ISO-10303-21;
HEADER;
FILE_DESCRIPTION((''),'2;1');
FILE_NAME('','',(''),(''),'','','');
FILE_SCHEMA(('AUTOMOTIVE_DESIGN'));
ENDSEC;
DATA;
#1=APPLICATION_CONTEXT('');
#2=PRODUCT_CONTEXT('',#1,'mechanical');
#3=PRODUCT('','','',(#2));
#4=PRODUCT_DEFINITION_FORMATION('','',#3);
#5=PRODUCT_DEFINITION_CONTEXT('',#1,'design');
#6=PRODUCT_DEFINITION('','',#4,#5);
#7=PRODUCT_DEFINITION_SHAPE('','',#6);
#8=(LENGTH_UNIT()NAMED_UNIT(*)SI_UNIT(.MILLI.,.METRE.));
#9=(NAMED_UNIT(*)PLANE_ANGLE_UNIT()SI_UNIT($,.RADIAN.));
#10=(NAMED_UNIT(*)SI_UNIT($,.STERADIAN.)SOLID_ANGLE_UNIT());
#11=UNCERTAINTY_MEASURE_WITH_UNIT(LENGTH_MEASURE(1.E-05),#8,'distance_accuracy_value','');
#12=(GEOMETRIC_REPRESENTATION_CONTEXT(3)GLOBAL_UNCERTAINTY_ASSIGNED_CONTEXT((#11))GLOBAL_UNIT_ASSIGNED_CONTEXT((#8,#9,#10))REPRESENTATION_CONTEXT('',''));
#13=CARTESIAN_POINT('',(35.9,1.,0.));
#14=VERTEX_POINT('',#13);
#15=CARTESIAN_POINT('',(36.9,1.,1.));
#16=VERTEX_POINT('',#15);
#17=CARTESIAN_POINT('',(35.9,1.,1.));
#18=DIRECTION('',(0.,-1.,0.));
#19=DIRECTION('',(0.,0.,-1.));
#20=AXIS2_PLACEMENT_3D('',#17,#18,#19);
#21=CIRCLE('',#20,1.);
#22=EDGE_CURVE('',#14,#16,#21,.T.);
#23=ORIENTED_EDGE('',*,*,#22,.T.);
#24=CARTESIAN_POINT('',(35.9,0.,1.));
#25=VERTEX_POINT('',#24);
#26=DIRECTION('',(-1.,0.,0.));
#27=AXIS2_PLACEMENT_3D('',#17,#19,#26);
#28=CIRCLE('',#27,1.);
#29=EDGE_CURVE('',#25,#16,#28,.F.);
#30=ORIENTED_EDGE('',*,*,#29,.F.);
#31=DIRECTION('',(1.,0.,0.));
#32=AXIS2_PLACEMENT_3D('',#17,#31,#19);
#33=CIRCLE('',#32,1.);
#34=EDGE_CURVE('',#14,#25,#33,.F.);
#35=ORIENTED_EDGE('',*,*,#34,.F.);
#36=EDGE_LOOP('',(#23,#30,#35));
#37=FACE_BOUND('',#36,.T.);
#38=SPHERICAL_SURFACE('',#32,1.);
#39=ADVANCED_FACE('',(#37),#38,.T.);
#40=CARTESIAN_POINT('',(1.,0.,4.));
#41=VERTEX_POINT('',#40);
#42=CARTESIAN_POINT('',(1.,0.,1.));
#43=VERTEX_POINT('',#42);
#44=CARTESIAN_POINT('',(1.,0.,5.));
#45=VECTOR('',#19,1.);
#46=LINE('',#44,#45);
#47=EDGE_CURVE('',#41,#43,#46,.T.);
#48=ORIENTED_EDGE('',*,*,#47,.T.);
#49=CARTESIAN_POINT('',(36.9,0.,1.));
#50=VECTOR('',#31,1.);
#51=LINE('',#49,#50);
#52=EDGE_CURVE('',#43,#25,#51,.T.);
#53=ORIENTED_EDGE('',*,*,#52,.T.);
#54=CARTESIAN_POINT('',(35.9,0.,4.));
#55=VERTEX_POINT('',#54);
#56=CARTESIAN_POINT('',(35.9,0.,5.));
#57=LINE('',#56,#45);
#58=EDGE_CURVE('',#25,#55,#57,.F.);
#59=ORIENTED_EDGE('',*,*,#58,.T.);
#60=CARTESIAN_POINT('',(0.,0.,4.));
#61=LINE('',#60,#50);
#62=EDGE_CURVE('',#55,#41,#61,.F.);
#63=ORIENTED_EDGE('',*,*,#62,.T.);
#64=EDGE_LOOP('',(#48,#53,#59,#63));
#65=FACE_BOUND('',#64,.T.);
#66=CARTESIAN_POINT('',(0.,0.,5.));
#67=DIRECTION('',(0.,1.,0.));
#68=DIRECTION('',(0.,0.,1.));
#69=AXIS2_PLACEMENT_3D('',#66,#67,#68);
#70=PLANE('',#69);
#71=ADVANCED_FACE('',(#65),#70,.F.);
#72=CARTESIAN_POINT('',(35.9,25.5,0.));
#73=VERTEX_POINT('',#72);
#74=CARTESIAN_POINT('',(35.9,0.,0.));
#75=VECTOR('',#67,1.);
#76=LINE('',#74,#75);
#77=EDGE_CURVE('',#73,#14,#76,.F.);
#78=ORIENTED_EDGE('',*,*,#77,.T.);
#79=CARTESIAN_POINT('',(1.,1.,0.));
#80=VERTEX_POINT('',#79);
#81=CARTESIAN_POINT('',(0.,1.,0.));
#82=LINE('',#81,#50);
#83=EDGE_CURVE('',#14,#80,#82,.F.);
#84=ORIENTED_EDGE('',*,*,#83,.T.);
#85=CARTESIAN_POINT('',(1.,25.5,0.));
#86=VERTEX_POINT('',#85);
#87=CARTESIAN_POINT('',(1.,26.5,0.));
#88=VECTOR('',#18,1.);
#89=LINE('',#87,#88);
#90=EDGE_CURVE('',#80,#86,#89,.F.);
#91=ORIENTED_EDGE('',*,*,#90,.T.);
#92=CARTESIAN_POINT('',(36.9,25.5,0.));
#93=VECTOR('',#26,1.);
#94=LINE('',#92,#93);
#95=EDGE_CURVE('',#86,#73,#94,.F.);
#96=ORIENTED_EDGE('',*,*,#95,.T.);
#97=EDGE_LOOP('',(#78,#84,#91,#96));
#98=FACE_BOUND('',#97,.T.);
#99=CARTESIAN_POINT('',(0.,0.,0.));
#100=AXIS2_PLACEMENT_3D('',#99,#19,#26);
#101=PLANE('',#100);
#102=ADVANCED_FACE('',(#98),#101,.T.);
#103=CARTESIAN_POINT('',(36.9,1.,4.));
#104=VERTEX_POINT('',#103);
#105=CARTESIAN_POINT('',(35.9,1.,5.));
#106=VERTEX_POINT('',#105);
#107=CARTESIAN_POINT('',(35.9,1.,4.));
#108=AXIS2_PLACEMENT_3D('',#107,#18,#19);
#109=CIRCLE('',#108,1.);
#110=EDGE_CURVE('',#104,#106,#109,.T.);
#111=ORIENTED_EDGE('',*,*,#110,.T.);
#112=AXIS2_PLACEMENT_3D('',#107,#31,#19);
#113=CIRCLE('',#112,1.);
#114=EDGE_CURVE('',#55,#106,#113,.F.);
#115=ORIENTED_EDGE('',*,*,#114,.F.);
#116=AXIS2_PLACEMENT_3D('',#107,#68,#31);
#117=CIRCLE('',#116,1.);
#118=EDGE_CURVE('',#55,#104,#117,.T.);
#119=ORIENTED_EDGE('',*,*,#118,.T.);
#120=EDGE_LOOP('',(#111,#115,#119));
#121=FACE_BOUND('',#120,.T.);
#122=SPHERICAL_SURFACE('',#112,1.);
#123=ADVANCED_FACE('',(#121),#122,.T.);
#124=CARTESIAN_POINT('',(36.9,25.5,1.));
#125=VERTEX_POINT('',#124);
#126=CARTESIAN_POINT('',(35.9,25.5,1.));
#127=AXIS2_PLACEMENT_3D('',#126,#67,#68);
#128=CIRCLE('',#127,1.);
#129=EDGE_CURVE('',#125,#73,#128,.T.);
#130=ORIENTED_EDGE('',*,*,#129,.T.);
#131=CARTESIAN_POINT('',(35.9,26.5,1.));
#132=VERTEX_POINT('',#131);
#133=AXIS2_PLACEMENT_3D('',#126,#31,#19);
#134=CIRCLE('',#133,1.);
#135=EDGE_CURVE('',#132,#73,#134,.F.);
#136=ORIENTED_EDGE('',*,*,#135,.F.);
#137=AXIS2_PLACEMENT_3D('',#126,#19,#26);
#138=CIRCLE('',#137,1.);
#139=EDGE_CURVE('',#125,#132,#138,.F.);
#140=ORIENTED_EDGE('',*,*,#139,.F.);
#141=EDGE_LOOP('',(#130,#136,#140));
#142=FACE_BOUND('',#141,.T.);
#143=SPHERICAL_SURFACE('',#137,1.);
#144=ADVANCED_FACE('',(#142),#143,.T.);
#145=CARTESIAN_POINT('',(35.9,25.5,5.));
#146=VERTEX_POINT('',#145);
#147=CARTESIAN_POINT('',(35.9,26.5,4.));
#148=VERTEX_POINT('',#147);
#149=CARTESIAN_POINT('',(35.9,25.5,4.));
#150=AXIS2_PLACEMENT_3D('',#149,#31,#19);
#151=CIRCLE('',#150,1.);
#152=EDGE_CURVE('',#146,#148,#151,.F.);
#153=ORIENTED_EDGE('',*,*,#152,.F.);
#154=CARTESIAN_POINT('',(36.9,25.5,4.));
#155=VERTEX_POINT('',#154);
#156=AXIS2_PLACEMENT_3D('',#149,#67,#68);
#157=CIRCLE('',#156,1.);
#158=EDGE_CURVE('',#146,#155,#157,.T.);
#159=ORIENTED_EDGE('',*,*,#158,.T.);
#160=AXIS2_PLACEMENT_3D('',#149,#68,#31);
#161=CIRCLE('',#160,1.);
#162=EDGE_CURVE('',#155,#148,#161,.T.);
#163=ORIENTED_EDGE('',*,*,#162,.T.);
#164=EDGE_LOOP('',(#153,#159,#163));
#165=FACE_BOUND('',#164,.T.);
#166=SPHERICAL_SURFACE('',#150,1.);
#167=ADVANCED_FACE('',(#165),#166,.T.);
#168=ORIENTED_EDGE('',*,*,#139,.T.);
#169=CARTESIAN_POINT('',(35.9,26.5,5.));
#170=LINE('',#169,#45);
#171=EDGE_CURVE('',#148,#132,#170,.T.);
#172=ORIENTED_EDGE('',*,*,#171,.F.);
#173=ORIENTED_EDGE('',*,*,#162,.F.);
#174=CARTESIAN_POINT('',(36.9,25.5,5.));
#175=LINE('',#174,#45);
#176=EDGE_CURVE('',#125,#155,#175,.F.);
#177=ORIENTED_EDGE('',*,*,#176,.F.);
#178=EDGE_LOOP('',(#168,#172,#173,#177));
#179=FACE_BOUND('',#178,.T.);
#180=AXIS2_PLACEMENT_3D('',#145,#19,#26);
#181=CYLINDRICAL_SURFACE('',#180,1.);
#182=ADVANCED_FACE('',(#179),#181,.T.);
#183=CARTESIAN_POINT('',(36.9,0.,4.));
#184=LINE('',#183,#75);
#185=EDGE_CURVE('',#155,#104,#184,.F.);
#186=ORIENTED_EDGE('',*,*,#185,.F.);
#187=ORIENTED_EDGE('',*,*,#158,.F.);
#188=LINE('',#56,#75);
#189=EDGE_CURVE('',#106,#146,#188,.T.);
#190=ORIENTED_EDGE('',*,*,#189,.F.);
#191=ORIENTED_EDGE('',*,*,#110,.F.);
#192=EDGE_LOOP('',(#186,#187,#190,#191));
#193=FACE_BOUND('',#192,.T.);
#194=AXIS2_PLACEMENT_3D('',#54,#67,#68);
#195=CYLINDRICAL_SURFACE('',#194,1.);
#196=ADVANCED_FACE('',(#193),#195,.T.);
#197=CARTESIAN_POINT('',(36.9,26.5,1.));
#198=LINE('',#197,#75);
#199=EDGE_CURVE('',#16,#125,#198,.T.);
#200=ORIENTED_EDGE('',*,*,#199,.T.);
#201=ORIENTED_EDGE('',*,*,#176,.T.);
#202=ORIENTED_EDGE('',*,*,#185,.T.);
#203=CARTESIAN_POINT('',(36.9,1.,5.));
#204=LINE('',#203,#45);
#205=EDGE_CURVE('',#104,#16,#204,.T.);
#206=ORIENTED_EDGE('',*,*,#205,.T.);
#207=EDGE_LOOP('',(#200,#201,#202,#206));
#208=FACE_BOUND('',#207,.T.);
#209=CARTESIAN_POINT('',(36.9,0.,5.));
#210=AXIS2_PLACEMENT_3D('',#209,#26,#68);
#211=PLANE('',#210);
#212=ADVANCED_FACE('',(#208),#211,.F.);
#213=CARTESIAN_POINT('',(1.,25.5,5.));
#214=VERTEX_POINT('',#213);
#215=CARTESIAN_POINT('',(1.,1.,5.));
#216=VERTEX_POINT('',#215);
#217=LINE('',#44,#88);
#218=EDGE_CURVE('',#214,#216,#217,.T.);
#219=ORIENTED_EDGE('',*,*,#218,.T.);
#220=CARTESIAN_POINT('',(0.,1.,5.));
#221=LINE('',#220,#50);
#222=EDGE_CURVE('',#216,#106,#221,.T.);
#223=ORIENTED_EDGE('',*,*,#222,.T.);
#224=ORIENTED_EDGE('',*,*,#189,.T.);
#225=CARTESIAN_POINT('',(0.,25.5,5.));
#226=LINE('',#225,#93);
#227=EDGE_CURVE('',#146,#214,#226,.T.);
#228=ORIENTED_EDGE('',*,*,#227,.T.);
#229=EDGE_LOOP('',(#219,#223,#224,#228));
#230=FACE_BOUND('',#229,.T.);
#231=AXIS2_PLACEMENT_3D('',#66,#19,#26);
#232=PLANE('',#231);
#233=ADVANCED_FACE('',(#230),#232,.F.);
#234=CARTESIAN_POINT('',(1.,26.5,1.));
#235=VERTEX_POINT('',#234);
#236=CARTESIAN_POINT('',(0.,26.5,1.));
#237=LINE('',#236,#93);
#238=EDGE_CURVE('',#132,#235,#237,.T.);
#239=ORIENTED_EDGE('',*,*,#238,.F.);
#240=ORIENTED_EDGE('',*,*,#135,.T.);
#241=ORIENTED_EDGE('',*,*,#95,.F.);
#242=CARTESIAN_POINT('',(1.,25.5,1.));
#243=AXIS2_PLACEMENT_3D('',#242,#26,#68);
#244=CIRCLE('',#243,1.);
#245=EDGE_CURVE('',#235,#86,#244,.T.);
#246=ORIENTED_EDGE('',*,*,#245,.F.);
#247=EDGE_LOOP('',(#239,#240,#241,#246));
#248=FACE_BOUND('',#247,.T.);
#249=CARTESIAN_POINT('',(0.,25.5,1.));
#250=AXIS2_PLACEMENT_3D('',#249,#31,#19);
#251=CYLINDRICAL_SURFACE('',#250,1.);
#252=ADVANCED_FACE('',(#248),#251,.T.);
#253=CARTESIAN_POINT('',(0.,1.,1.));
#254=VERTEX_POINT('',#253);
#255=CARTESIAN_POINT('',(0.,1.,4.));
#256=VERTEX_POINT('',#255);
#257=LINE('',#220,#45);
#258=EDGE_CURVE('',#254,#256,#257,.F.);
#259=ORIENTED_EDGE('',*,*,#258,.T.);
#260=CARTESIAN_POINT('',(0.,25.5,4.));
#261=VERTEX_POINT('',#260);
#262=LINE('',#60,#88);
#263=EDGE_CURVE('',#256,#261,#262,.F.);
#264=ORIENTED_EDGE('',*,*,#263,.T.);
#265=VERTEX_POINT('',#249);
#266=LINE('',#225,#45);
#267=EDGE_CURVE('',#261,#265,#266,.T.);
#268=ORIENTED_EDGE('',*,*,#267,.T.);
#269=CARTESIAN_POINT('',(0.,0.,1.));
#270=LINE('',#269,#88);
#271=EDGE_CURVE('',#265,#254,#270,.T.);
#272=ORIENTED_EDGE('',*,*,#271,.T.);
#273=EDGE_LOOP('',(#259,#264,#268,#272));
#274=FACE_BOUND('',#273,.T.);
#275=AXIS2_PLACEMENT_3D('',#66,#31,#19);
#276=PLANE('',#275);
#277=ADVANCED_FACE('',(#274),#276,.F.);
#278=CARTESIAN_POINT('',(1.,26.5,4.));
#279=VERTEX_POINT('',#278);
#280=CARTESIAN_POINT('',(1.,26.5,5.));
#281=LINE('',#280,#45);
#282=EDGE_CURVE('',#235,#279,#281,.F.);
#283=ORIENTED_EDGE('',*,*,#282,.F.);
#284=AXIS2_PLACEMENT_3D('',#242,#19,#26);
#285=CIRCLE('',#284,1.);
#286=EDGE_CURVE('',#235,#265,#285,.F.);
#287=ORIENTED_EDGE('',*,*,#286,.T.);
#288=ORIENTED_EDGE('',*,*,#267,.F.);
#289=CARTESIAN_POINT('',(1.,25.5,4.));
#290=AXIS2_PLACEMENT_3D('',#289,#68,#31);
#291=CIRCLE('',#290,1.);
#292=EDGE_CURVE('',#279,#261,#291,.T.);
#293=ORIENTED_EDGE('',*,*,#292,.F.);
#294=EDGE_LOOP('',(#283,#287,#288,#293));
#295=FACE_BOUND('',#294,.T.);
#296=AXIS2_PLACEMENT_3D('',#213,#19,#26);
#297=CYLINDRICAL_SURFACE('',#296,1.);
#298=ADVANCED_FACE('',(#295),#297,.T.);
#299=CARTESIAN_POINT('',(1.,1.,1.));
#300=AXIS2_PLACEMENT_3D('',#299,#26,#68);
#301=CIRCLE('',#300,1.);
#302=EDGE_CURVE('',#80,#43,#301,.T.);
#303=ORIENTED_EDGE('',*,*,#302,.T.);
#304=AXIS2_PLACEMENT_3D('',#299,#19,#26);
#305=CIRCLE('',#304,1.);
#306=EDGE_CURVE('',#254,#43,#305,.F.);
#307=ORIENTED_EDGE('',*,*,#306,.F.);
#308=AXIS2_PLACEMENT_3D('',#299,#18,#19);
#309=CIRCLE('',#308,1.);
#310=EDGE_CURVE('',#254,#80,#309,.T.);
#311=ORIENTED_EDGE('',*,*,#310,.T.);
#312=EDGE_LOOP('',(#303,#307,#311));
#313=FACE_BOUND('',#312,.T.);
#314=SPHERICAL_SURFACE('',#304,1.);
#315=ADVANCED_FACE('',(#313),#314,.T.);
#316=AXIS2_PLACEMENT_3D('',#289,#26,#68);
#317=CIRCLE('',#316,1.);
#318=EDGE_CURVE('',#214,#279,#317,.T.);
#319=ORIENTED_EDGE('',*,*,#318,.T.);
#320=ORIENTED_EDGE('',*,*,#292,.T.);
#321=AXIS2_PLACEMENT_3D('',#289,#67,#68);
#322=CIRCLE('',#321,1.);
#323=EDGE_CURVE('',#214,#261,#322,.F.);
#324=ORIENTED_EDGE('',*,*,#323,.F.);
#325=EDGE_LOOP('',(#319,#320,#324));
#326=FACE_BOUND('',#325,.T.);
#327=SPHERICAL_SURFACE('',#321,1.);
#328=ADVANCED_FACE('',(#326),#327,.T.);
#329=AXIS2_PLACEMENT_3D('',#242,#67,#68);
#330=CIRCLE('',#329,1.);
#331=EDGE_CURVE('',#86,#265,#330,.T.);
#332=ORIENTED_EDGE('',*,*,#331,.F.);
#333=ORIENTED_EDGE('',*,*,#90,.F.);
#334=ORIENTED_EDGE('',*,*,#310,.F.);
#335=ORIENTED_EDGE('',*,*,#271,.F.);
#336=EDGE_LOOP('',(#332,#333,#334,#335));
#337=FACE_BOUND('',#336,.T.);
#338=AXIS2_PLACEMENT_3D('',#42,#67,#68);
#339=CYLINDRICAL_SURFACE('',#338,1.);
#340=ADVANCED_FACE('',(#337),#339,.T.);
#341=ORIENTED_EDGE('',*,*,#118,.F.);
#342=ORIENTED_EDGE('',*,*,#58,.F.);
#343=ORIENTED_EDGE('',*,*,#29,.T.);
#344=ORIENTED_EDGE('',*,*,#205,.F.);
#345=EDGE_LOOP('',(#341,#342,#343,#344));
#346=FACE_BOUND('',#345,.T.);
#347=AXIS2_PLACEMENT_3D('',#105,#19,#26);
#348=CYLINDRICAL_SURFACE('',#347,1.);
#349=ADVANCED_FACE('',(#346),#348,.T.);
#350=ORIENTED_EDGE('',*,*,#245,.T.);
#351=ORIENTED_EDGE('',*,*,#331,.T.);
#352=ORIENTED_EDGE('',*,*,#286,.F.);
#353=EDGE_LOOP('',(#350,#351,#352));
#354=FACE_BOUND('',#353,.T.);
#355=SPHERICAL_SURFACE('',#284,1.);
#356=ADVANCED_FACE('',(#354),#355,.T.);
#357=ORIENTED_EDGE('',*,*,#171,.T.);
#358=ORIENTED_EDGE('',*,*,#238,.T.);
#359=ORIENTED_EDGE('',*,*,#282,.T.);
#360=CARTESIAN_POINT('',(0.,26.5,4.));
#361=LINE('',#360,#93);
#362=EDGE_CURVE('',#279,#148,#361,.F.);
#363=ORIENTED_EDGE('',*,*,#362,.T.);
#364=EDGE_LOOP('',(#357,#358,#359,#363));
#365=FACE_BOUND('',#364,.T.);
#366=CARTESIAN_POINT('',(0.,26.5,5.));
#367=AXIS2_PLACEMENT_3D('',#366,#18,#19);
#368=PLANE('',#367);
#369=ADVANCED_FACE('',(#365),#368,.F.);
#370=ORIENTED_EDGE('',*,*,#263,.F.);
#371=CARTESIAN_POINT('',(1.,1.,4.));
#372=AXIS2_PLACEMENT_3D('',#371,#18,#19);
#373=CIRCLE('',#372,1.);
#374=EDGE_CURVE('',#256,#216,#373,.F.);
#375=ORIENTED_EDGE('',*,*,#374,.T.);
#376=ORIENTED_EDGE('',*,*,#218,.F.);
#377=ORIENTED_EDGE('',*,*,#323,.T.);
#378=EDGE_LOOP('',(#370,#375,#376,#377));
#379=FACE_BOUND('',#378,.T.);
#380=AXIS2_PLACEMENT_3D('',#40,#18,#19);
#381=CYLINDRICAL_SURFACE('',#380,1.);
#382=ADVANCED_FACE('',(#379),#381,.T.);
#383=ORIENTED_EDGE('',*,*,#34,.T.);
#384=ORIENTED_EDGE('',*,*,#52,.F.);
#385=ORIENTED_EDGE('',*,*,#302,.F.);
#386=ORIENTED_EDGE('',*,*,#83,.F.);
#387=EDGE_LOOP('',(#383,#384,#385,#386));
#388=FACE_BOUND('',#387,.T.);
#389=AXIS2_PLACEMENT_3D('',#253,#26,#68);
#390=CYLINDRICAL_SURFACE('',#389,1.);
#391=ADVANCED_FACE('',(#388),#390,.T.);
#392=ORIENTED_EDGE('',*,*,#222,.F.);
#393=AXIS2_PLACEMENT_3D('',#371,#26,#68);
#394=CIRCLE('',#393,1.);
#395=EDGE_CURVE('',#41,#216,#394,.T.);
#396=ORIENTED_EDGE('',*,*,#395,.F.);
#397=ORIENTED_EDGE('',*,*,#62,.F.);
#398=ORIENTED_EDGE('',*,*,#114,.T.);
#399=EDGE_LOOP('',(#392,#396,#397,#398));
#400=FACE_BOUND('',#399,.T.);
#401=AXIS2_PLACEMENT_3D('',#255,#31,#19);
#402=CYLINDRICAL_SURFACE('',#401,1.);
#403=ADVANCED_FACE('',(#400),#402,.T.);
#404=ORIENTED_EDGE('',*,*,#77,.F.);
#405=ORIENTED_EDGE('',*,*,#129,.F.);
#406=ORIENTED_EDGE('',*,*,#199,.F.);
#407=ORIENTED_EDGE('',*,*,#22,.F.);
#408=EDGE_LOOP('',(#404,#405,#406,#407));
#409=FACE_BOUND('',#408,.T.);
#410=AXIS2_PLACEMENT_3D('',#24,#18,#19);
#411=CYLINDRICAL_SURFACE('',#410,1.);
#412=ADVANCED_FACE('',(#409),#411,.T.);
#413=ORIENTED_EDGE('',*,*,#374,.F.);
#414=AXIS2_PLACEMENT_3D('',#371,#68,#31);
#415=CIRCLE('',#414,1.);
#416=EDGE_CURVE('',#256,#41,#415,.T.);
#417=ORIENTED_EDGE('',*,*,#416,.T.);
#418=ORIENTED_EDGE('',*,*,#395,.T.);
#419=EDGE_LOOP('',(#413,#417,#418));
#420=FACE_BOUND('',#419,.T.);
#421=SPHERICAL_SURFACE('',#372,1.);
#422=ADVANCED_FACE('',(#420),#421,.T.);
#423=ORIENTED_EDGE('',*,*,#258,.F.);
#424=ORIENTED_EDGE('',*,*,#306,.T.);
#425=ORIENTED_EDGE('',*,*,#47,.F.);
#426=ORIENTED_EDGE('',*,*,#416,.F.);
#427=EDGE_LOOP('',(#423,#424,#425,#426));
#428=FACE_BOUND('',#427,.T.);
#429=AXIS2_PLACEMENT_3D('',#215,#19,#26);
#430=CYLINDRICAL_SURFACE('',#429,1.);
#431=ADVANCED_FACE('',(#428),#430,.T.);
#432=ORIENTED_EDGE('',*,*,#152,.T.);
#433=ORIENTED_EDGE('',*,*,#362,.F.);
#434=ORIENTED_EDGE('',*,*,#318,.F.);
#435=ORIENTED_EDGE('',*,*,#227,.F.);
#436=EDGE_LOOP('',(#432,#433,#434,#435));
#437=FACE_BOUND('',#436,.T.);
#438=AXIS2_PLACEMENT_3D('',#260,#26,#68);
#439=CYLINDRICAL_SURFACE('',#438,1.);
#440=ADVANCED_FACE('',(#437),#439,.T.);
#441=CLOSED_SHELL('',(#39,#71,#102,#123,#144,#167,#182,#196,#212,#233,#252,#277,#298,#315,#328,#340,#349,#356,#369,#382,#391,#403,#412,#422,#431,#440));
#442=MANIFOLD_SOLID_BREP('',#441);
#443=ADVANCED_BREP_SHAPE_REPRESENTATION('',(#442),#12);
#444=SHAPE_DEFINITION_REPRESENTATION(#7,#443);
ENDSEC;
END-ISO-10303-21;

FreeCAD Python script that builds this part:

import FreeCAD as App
import Part
import Sketcher


def add_polygon(sketch, points):
    """Adds a closed chain of lines whose ends are joined by coincident constraints."""
    first, n = sketch.GeometryCount, len(points)
    for a, b in zip(points, points[1:] + points[:1]):
        sketch.addGeometry(Part.LineSegment(App.Vector(*a, 0), App.Vector(*b, 0)), False)
    for i in range(n):
        sketch.addConstraint(Sketcher.Constraint("Coincident", first + i, 2, first + (i + 1) % n, 1))

doc = App.newDocument("Part")
params = doc.addObject("Spreadsheet::Sheet", "Params")
for row, (alias, value) in enumerate([
    ("sketch1_width", "36.9 mm"),
    ("sketch1_height", "26.5 mm"),
    ("pad1_length", "5 mm"),
    ("fillet_radius", "1 mm"),
], start=1):
    params.set(f"A{row}", alias)
    params.set(f"B{row}", "=" + value)
    params.setAlias(f"B{row}", alias)

body = doc.addObject("PartDesign::Body", "Body")

sketch1 = doc.addObject("Sketcher::SketchObject", "Sketch")
body.addObject(sketch1)
sketch1.AttachmentSupport = (doc.XY_Plane, [""])
sketch1.MapMode = "FlatFace"
add_polygon(sketch1, [(0, 26), (0, 0), (37, 0), (37, 26)])
sketch1.addConstraint([
    Sketcher.Constraint("Vertical", 0),
    Sketcher.Constraint("Horizontal", 1),
    Sketcher.Constraint("Vertical", 2),
    Sketcher.Constraint("Horizontal", 3),
    Sketcher.Constraint("Coincident", 0, 2, -1, 1),
    Sketcher.Constraint("DistanceX", 1, 1, 1, 2, 36.9),
    Sketcher.Constraint("DistanceY", 0, 2, 0, 1, 26.5),
])
sketch1.setExpression("Constraints[9]", "Params.sketch1_width")
sketch1.setExpression("Constraints[10]", "Params.sketch1_height")
pad1 = doc.addObject("PartDesign::Pad", "Pad")
body.addObject(pad1)
pad1.Profile = sketch1
pad1.setExpression("Length", "Params.pad1_length")
doc.recompute()

fillet = doc.addObject("PartDesign::Fillet", "Fillet")
body.addObject(fillet)
fillet.Base = (pad1, ["Edge1"])
fillet.UseAllEdges = True
fillet.setExpression("Radius", "Params.fillet_radius")

doc.recompute()
